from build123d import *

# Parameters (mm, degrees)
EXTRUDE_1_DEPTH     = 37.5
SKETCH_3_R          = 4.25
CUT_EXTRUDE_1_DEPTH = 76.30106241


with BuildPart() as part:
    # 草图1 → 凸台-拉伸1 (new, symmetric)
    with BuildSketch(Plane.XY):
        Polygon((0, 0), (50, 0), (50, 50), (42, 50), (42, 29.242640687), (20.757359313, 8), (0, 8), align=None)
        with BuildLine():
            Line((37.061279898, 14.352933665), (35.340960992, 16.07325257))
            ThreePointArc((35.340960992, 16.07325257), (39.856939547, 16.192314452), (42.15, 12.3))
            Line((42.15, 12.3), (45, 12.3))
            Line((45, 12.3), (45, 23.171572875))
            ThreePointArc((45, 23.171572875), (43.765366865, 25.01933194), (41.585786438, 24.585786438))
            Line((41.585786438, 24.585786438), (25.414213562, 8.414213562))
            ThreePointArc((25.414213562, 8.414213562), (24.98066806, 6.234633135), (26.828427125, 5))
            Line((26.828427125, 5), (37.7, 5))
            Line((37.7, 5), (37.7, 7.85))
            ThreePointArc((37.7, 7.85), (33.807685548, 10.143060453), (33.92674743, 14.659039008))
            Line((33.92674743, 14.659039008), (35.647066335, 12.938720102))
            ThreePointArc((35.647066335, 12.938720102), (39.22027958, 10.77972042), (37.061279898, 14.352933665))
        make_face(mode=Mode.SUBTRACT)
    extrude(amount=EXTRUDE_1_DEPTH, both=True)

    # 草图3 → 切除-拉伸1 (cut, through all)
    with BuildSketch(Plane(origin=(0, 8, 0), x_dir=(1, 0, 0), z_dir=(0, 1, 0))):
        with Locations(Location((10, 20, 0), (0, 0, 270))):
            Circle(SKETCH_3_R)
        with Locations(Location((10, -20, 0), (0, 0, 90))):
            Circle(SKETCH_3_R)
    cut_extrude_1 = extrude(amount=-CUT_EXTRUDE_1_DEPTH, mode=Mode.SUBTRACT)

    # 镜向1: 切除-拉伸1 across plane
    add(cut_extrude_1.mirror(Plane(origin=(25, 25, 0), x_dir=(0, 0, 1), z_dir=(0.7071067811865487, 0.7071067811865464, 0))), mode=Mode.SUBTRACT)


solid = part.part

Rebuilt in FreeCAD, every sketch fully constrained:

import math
import FreeCAD as App
import Part
import Sketcher
from FreeCAD import Vector


def add_polygon(sketch, points):
    """Adds a closed chain of lines whose ends are joined by coincident constraints."""
    first, n = sketch.GeometryCount, len(points)
    for a, b in zip(points, points[1:] + points[:1]):
        sketch.addGeometry(Part.LineSegment(App.Vector(*a, 0), App.Vector(*b, 0)), False)
    for i in range(n):
        sketch.addConstraint(Sketcher.Constraint("Coincident", first + i, 2, first + (i + 1) % n, 1))

doc = App.newDocument("Part")
params = doc.addObject("Spreadsheet::Sheet", "Params")
for row, (alias, value) in enumerate([
    ("sketch1_radius", "2 mm"),
    ("sketch1_width", "50 mm"),
    ("sketch1_width2", "8 mm"),
    ("sketch1_radius2", "2.15 mm"),
    ("sketch1_radius3", "4.45 mm"),
    ("pad1_length", "75 mm"),
    ("sketch2_diameter", "8.5 mm"),
], start=1):
    params.set(f"A{row}", alias)
    params.set(f"B{row}", "=" + value)
    params.setAlias(f"B{row}", alias)

body = doc.addObject("PartDesign::Body", "Body")

# Sketch on XY plane
sketch1 = body.newObject("Sketcher::SketchObject", "Sketch")
sketch1.AttachmentSupport = (doc.getObject("XY_Plane"), [""])
sketch1.MapMode = "FlatFace"
add_polygon(sketch1, [(0, 0), (50, 0), (50, 50), (42, 50), (42, 29.242641), (20.757359, 8), (0, 8)])  # lines 0-6
sketch1.addGeometry(Part.LineSegment(Vector(35.340961, 16.073253, 0), Vector(37.06128, 14.352934, 0)), False)  # 7
sketch1.addGeometry(Part.ArcOfCircle(Part.Circle(Vector(37.7, 12.3, 0), Vector(0, 0, 1), 2.15), math.radians(162.717748), math.radians(467.282252)), False)  # 8
sketch1.addGeometry(Part.LineSegment(Vector(35.647066, 12.93872, 0), Vector(33.926747, 14.659039, 0)), False)  # 9
sketch1.addGeometry(Part.ArcOfCircle(Part.Circle(Vector(37.7, 12.3, 0), Vector(0, 0, 1), 4.45), math.radians(147.986361), math.radians(270)), False)  # 10
sketch1.addGeometry(Part.LineSegment(Vector(37.7, 7.85, 0), Vector(37.7, 5, 0)), False)  # 11
sketch1.addGeometry(Part.LineSegment(Vector(37.7, 5, 0), Vector(26.828427, 5, 0)), False)  # 12
sketch1.addGeometry(Part.ArcOfCircle(Part.Circle(Vector(26.828427, 7, 0), Vector(0, 0, 1), 2), math.radians(135), math.radians(270)), False)  # 13
sketch1.addGeometry(Part.LineSegment(Vector(25.414214, 8.414214, 0), Vector(41.585786, 24.585786, 0)), False)  # 14
sketch1.addGeometry(Part.ArcOfCircle(Part.Circle(Vector(43, 23.171573, 0), Vector(0, 0, 1), 2), math.radians(0), math.radians(135)), False)  # 15
sketch1.addGeometry(Part.LineSegment(Vector(45, 23.171573, 0), Vector(45, 12.3, 0)), False)  # 16
sketch1.addGeometry(Part.LineSegment(Vector(45, 12.3, 0), Vector(42.15, 12.3, 0)), False)  # 17
sketch1.addGeometry(Part.ArcOfCircle(Part.Circle(Vector(37.7, 12.3, 0), Vector(0, 0, 1), 4.45), math.radians(0), math.radians(122.013639)), False)  # 18
sketch1.addConstraint([
    Sketcher.Constraint("Coincident", 7, 2, 8, 2),
    Sketcher.Constraint("Coincident", 8, 1, 9, 1),
    Sketcher.Constraint("Coincident", 9, 2, 10, 1),
    Sketcher.Constraint("Coincident", 10, 2, 11, 1),
    Sketcher.Constraint("Coincident", 11, 2, 12, 1),
    Sketcher.Constraint("Tangent", 12, 2, 13, 2),
    Sketcher.Constraint("Tangent", 13, 1, 14, 1),
    Sketcher.Constraint("Tangent", 14, 2, 15, 2),
    Sketcher.Constraint("Tangent", 15, 1, 16, 1),
    Sketcher.Constraint("Coincident", 16, 2, 17, 1),
    Sketcher.Constraint("Coincident", 17, 2, 18, 1),
    Sketcher.Constraint("Coincident", 18, 2, 7, 1),
    Sketcher.Constraint("Horizontal", 0),
    Sketcher.Constraint("Vertical", 1),
    Sketcher.Constraint("Horizontal", 2),
    Sketcher.Constraint("Vertical", 3),
    Sketcher.Constraint("Horizontal", 5),
    Sketcher.Constraint("Vertical", 6),
    Sketcher.Constraint("Vertical", 11),
    Sketcher.Constraint("Horizontal", 12),
    Sketcher.Constraint("Vertical", 16),
    Sketcher.Constraint("Horizontal", 17),
    Sketcher.Constraint("Coincident", 6, 2, -1, 1),
    Sketcher.Constraint("Coincident", 10, 3, 8, 3),
    Sketcher.Constraint("Coincident", 18, 3, 8, 3),
    Sketcher.Constraint("Equal", 13, 15),
    Sketcher.Constraint("Equal", 10, 18),
    Sketcher.Constraint("Perpendicular", 4, 7),
    Sketcher.Constraint("Parallel", 7, 9),
    Sketcher.Constraint("Perpendicular", 9, 14),
    Sketcher.Constraint("Horizontal", 18, 3, 16, 2),
    Sketcher.Constraint("Vertical", 18, 3, 10, 2),
    Sketcher.Constraint("Equal", 0, 1),
    Sketcher.Constraint("Equal", 5, 3),
    Sketcher.Constraint("Equal", 2, 6),
    Sketcher.Constraint("Equal", 17, 11),
    Sketcher.Constraint("Equal", 7, 9),
    Sketcher.Constraint("Radius", 13, 2.0),
    Sketcher.Constraint("DistanceX", 0, 1, 0, 2, 50.0),
    Sketcher.Constraint("DistanceX", 2, 2, 2, 1, 8.0),
    Sketcher.Constraint("Radius", 8, 2.15),
    Sketcher.Constraint("Radius", 10, 4.45),
    Sketcher.Constraint("DistanceY", -1, 1, 13, 3, 7.0),
    Sketcher.Constraint("DistanceX", -1, 1, 15, 3, 43.0),
    Sketcher.Constraint("DistanceX", 17, 2, 17, 1, 2.85),
    Sketcher.Constraint("Distance", 7, 2.432898),
    Sketcher.Constraint("DistanceX", 5, 2, 5, 1, 20.757359),
    Sketcher.Constraint("DistanceX", 12, 2, 12, 1, 10.871573),
])
sketch1.setExpression("Constraints[44]", "Params.sketch1_radius")
sketch1.setExpression("Constraints[45]", "Params.sketch1_width")
sketch1.setExpression("Constraints[46]", "Params.sketch1_width2")
sketch1.setExpression("Constraints[47]", "Params.sketch1_radius2")
sketch1.setExpression("Constraints[48]", "Params.sketch1_radius3")
pad1 = body.newObject("PartDesign::Pad", "Pad")
pad1.Profile = sketch1
pad1.setExpression("Length", "Params.pad1_length")
pad1.Midplane = True

# Sketch on XZ plane
sketch2 = body.newObject("Sketcher::SketchObject", "Sketch001")
sketch2.AttachmentSupport = (doc.getObject("XZ_Plane"), [""])
sketch2.MapMode = "FlatFace"
sketch2.AttachmentOffset = App.Placement(Vector(0, 0, -8), App.Rotation())
sketch2.addGeometry([
    Part.Circle(Vector(10, -20, 0), Vector(0, 0, 1), 4.25),
    Part.Circle(Vector(10, 20, 0), Vector(0, 0, 1), 4.25),
], False)
sketch2.addConstraint([
    Sketcher.Constraint("Equal", 0, 1),
    Sketcher.Constraint("Symmetric", 0, 3, 1, 3, -1),
    Sketcher.Constraint("Diameter", 0, 8.5),
    Sketcher.Constraint("DistanceX", -1, 1, 0, 3, 10.0),
    Sketcher.Constraint("DistanceY", 0, 3, -1, 1, 20.0),
])
sketch2.setExpression("Constraints[2]", "Params.sketch2_diameter")
pocket1 = body.newObject("PartDesign::Pocket", "Pocket")
pocket1.Profile = sketch2
pocket1.Type = "ThroughAll"
pocket1.Reversed = True
doc.recompute()

datumplane = body.newObject("PartDesign::Plane", "DatumPlane")
datumplane.Placement = App.Placement(Vector(25, 25, 0), App.Rotation(Vector(0.707106781, -0.707106781, 0), Vector(0, 0, -1), Vector(0.707106781, 0.707106781, 0), "ZXY"))
mirrored = body.newObject("PartDesign::Mirrored", "Mirrored")
mirrored.Originals = [pocket1]
mirrored.MirrorPlane = (datumplane, [""])
body.Tip = mirrored

doc.recompute()
